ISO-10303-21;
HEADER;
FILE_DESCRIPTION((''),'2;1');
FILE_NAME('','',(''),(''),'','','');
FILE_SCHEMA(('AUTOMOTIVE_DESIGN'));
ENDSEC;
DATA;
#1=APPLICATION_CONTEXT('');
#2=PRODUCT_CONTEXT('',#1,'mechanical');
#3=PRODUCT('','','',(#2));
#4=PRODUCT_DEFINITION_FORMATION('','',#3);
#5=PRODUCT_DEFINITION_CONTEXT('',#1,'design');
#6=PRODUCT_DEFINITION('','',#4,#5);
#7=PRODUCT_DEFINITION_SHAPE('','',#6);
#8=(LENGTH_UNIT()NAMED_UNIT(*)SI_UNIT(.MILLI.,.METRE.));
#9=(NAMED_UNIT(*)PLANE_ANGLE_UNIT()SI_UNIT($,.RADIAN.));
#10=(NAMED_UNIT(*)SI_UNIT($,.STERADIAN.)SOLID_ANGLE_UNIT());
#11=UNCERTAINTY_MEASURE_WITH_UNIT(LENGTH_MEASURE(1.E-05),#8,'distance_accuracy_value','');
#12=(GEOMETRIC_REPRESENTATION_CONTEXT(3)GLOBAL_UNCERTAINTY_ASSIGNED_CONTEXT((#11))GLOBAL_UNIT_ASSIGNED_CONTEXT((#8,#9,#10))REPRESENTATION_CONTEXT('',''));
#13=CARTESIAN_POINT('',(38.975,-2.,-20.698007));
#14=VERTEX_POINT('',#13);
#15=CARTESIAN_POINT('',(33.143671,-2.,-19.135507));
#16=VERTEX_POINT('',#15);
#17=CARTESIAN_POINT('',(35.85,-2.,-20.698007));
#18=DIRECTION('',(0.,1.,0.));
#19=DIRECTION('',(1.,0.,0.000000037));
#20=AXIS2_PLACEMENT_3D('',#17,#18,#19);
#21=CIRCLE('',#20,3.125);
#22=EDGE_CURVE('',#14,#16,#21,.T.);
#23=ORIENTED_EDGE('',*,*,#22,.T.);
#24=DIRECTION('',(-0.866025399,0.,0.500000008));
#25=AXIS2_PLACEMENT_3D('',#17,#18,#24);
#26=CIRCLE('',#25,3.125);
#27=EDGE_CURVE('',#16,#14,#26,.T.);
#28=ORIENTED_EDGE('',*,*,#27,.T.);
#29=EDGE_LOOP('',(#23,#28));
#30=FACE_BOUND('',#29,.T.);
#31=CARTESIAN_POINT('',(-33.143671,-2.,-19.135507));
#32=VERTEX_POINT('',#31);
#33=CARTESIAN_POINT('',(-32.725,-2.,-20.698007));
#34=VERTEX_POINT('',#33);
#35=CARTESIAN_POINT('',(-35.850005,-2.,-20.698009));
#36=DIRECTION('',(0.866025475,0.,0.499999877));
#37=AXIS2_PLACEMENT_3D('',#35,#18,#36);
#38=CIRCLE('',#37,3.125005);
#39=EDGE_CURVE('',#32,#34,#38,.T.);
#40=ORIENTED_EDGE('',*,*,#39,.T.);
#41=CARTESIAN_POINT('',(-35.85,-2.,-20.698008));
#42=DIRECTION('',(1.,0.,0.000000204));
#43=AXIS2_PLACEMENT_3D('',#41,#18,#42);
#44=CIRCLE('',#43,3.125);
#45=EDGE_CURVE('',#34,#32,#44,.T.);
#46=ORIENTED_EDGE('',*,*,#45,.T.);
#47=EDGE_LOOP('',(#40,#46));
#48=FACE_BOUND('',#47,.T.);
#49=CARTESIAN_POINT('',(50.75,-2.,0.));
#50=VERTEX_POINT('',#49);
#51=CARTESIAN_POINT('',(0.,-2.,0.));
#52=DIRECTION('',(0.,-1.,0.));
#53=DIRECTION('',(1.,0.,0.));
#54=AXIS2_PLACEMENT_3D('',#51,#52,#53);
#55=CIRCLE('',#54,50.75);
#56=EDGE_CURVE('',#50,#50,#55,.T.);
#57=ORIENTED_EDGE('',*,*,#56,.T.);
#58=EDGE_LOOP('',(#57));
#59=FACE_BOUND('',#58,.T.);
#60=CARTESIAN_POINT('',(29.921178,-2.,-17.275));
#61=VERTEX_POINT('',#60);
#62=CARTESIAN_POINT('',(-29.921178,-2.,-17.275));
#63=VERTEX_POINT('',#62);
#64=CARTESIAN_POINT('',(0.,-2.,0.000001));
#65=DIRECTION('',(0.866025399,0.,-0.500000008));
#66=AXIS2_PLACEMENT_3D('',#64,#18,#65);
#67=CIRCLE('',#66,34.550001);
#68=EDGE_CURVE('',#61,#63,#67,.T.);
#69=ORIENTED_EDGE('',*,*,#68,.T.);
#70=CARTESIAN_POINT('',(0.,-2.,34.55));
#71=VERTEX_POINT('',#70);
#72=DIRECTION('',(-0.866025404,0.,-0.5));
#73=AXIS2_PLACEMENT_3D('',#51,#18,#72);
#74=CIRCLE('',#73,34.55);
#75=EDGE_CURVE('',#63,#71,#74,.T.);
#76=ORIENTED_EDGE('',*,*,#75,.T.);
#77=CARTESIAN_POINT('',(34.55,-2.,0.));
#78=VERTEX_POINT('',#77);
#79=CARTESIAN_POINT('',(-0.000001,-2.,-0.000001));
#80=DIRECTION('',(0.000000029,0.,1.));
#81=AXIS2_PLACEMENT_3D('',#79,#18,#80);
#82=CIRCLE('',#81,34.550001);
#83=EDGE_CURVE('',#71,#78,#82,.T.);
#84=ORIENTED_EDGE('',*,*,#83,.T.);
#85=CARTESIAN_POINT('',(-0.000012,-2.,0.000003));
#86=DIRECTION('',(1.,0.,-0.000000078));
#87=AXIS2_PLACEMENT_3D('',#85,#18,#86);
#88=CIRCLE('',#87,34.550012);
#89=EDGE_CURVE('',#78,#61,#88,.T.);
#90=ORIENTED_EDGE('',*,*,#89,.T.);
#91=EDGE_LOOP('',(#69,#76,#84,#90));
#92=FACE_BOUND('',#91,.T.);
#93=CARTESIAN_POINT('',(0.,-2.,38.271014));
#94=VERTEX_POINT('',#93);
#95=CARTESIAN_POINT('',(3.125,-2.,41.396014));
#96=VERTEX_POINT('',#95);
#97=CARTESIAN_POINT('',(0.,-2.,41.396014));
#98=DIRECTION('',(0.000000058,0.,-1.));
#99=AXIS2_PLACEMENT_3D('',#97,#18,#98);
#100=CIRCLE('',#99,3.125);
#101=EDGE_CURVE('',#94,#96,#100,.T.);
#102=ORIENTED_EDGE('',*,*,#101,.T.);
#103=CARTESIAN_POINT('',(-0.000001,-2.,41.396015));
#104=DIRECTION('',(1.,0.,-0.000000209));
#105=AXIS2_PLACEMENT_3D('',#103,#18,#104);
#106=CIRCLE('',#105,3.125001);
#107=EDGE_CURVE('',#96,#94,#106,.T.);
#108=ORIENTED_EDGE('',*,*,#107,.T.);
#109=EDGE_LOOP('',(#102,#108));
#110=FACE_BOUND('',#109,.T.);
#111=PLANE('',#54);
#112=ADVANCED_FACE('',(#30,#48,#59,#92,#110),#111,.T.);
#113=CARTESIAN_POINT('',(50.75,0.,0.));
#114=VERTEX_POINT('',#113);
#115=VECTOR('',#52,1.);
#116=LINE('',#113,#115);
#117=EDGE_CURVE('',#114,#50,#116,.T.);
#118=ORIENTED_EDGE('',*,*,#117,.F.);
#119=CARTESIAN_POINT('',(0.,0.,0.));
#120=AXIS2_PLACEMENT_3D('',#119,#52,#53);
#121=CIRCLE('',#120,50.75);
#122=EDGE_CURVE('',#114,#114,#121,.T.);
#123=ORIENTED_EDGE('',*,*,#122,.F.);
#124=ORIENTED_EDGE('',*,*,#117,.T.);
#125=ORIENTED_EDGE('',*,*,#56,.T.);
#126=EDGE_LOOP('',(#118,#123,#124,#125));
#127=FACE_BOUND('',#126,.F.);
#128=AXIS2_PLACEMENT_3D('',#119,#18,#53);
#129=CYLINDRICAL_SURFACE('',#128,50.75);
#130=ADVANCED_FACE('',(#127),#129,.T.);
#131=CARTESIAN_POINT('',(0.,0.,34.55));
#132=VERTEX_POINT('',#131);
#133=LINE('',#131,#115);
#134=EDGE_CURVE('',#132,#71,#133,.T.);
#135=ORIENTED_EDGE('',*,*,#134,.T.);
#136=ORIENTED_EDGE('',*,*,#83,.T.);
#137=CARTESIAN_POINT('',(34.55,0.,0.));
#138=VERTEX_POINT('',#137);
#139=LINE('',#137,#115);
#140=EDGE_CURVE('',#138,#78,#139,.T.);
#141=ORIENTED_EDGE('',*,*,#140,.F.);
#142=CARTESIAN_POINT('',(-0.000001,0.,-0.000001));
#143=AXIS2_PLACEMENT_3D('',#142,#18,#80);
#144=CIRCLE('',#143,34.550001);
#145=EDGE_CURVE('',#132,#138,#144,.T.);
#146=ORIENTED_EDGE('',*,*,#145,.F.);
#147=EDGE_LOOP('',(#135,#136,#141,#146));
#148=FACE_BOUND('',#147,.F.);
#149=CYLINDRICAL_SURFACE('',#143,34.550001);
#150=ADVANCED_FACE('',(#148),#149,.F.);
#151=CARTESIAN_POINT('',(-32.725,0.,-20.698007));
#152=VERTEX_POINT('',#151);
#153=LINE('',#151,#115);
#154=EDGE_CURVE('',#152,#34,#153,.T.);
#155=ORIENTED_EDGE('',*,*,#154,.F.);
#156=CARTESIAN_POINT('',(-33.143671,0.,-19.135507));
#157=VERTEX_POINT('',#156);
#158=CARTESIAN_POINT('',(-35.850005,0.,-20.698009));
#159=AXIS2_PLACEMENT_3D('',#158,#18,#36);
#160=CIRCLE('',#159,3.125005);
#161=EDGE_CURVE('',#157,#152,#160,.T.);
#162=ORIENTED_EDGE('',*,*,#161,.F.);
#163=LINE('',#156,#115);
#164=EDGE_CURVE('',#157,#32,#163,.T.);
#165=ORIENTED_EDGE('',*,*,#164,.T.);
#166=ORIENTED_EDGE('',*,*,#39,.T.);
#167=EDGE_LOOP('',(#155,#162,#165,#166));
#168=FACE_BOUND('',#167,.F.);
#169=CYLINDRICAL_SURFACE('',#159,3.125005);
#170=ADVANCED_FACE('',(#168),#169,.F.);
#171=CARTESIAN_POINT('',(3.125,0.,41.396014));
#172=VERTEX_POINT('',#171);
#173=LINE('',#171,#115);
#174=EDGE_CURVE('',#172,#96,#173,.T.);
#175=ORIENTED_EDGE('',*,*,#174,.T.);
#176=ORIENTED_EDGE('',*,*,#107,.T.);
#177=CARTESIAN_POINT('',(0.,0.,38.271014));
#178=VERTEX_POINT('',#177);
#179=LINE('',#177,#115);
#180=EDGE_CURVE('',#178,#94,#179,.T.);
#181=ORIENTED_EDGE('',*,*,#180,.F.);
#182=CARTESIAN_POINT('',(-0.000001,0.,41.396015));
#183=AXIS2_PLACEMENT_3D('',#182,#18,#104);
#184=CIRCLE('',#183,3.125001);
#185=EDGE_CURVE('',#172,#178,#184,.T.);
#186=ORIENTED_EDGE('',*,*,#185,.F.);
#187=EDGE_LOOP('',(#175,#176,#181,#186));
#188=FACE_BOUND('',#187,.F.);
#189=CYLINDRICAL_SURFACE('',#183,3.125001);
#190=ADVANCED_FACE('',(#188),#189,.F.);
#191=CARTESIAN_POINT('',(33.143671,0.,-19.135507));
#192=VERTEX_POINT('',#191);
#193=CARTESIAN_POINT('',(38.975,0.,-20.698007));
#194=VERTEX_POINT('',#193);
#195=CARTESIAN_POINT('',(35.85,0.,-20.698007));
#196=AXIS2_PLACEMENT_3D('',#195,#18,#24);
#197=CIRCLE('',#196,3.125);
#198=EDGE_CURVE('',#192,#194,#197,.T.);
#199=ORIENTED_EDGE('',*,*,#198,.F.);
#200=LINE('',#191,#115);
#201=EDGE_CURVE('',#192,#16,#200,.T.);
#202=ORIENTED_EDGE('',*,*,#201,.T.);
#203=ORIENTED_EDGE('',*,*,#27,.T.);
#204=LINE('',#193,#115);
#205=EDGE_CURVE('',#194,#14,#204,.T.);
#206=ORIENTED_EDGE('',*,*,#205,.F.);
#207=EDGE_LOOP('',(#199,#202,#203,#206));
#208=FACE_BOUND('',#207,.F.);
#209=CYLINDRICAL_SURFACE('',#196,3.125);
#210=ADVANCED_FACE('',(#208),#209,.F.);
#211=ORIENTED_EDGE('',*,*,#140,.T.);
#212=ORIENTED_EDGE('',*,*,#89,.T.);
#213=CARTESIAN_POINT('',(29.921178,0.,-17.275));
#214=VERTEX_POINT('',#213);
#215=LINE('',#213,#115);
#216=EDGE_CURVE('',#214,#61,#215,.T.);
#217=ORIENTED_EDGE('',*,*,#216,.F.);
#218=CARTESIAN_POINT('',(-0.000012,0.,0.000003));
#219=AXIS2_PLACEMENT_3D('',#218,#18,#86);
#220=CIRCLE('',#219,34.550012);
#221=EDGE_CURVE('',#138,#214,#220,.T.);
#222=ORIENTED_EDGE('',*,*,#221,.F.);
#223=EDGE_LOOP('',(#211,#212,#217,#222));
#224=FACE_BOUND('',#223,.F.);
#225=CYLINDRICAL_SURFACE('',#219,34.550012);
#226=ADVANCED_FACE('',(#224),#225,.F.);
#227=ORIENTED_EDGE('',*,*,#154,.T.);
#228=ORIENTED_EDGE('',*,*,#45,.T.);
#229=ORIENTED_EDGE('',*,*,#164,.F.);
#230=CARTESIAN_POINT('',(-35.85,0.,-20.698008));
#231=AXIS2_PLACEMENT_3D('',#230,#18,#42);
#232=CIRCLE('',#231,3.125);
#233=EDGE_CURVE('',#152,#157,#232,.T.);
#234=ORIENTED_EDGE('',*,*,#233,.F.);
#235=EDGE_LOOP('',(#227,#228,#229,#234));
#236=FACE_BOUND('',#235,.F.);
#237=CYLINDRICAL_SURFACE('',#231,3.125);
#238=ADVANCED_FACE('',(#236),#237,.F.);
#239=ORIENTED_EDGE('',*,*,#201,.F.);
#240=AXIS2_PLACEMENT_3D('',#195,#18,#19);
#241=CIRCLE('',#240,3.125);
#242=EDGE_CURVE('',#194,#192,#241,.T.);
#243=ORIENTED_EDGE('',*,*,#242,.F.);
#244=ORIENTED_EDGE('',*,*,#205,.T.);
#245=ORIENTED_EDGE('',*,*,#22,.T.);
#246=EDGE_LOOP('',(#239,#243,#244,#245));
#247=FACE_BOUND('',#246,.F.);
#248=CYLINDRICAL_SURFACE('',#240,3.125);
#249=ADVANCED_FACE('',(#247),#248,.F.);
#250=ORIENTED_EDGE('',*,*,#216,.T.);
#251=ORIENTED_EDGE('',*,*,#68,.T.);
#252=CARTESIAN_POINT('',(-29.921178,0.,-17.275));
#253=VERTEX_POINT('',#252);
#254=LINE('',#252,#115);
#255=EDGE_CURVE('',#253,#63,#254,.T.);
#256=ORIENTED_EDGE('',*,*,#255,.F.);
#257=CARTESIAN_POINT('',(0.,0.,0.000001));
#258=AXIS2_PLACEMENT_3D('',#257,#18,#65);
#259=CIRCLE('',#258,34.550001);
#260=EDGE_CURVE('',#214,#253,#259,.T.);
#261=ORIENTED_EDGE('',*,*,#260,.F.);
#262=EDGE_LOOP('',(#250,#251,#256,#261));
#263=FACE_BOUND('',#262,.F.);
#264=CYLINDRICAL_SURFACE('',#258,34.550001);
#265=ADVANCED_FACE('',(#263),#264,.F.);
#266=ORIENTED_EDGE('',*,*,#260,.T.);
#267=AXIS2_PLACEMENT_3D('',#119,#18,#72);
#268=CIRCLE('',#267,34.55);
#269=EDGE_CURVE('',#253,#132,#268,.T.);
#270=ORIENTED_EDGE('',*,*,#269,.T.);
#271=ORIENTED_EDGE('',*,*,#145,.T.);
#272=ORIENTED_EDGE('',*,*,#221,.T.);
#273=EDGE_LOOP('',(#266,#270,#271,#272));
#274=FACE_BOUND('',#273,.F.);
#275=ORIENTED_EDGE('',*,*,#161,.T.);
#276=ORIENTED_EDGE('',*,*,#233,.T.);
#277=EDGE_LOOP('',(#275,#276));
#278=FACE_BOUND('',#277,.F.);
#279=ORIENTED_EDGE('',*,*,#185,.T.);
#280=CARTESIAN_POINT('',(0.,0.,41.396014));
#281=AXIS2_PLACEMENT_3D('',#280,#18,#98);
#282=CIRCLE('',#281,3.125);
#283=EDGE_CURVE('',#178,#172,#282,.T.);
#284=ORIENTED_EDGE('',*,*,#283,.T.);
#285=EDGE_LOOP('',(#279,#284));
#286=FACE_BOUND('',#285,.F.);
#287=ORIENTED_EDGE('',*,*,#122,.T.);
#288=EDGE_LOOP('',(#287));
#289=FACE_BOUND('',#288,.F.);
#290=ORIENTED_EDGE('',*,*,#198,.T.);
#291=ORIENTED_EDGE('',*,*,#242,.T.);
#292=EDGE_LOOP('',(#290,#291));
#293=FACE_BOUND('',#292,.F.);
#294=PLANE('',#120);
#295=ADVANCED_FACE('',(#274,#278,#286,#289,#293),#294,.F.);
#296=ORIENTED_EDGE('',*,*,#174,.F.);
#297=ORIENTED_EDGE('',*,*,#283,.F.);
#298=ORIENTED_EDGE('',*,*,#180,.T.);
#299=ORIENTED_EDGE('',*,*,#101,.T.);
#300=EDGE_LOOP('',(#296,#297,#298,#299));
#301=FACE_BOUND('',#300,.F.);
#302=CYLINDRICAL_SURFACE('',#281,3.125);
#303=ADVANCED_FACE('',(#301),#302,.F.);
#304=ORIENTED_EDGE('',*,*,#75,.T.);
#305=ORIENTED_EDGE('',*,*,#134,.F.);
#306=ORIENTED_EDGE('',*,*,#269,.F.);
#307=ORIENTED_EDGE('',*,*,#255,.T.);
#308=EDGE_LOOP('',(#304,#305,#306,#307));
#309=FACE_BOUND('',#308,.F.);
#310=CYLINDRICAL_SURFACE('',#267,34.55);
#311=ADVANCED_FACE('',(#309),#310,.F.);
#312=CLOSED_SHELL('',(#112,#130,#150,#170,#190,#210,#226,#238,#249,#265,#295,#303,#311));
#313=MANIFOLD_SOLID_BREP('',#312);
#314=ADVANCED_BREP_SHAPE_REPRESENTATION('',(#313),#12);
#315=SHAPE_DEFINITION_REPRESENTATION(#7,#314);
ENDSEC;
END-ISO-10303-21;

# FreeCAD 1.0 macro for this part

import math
import FreeCAD as App
import Part
import Sketcher
from FreeCAD import Vector
Q = App.Units.Quantity

doc = App.newDocument("Part")
body = doc.addObject("PartDesign::Body", "Body")

# Sketch on XZ plane
sketch1 = body.newObject("Sketcher::SketchObject", "Sketch")
sketch1.AttachmentSupport = (doc.getObject("XZ_Plane"), [""])
sketch1.MapMode = "FlatFace"
sketch1.addGeometry([
    Part.Circle(Vector(0, 0, 0), Vector(0, 0, 1), 50.8),  # 0
    Part.ArcOfCircle(Part.Circle(Vector(-35.9, -20.7, 0), Vector(0, 0, 1), 3.1), math.radians(0), math.radians(30)),  # 1
    Part.ArcOfCircle(Part.Circle(Vector(-35.8, -20.7, 0), Vector(0, 0, 1), 3.1), math.radians(30), math.radians(360)),  # 2
    Part.ArcOfCircle(Part.Circle(Vector(0, 0, 0), Vector(0, 0, 1), 34.6), math.radians(-150), math.radians(-30)),  # 3
    Part.ArcOfCircle(Part.Circle(Vector(0, 0, 0), Vector(0, 0, 1), 34.5), math.radians(90), math.radians(210)),  # 4
    Part.ArcOfCircle(Part.Circle(Vector(0, 0, 0), Vector(0, 0, 1), 34.6), math.radians(0), math.radians(90)),  # 5
    Part.ArcOfCircle(Part.Circle(Vector(0, 0, 0), Vector(0, 0, 1), 34.6), math.radians(-30), math.radians(0)),  # 6
    Part.ArcOfCircle(Part.Circle(Vector(35.9, -20.7, 0), Vector(0, 0, 1), 3.1), math.radians(0), math.radians(150)),  # 7
    Part.ArcOfCircle(Part.Circle(Vector(35.9, -20.7, 0), Vector(0, 0, 1), 3.1), math.radians(150), math.radians(360)),  # 8
    Part.ArcOfCircle(Part.Circle(Vector(0, 41.4, 0), Vector(0, 0, 1), 3.1), math.radians(-90), math.radians(0)),  # 9
    Part.ArcOfCircle(Part.Circle(Vector(0, 41.4, 0), Vector(0, 0, 1), 3.1), math.radians(0), math.radians(270)),  # 10
], False)
sketch1.addConstraint([
    Sketcher.Constraint("Tangent", 1, 1, 2, 2),
    Sketcher.Constraint("Coincident", 2, 1, 1, 2),
    Sketcher.Constraint("Tangent", 3, 1, 4, 2),
    Sketcher.Constraint("Tangent", 4, 1, 5, 2),
    Sketcher.Constraint("Tangent", 5, 1, 6, 2),
    Sketcher.Constraint("Tangent", 6, 1, 3, 2),
    Sketcher.Constraint("Tangent", 7, 1, 8, 2),
    Sketcher.Constraint("Coincident", 8, 1, 7, 2),
    Sketcher.Constraint("Tangent", 9, 1, 10, 2),
    Sketcher.Constraint("Coincident", 10, 1, 9, 2),
    Sketcher.Constraint("Coincident", 0, 3, -1, 1),
    Sketcher.Constraint("Coincident", 3, 3, -1, 1),
    Sketcher.Constraint("Equal", 3, 4),
    Sketcher.Constraint("Equal", 2, 7),
    Sketcher.Constraint("Equal", 8, 9),
    Sketcher.Constraint("Symmetric", 1, 3, 7, 3, -2),
    Sketcher.Constraint("PointOnObject", 9, 3, -2),
    Sketcher.Constraint("PointOnObject", 4, 1, -2),
    Sketcher.Constraint("PointOnObject", 5, 1, -1),
    Sketcher.Constraint("PointOnObject", 9, 1, -2),
    Sketcher.Constraint("Horizontal", 8, 3, 1, 1),
    Sketcher.Constraint("Horizontal", 3, 1, 6, 1),
    Sketcher.Constraint("Horizontal", 1, 1, 7, 1),
    Sketcher.Constraint("Horizontal", 2, 1, 8, 1),
    Sketcher.Constraint("Horizontal", 9, 3, 10, 1),
    Sketcher.Constraint("Diameter", 0, Q("101.5 mm")),
    Sketcher.Constraint("Radius", 3, Q("34.550001 mm")),
    Sketcher.Constraint("Radius", 2, Q("3.125 mm")),
    Sketcher.Constraint("DistanceX", 5, 1, 7, 3, Q("1.3 mm")),
    Sketcher.Constraint("DistanceY", 3, 1, -1, 1, Q("17.275 mm")),
    Sketcher.Constraint("DistanceY", 1, 1, 2, 1, Q("1.5625 mm")),
    Sketcher.Constraint("DistanceY", 1, 3, -1, 1, Q("20.698009 mm")),
    Sketcher.Constraint("DistanceY", 6, 3, 9, 3, Q("41.396012 mm")),
])
pad1 = body.newObject("PartDesign::Pad", "Pad")
pad1.Profile = sketch1
pad1.Length = 2

doc.recompute()
